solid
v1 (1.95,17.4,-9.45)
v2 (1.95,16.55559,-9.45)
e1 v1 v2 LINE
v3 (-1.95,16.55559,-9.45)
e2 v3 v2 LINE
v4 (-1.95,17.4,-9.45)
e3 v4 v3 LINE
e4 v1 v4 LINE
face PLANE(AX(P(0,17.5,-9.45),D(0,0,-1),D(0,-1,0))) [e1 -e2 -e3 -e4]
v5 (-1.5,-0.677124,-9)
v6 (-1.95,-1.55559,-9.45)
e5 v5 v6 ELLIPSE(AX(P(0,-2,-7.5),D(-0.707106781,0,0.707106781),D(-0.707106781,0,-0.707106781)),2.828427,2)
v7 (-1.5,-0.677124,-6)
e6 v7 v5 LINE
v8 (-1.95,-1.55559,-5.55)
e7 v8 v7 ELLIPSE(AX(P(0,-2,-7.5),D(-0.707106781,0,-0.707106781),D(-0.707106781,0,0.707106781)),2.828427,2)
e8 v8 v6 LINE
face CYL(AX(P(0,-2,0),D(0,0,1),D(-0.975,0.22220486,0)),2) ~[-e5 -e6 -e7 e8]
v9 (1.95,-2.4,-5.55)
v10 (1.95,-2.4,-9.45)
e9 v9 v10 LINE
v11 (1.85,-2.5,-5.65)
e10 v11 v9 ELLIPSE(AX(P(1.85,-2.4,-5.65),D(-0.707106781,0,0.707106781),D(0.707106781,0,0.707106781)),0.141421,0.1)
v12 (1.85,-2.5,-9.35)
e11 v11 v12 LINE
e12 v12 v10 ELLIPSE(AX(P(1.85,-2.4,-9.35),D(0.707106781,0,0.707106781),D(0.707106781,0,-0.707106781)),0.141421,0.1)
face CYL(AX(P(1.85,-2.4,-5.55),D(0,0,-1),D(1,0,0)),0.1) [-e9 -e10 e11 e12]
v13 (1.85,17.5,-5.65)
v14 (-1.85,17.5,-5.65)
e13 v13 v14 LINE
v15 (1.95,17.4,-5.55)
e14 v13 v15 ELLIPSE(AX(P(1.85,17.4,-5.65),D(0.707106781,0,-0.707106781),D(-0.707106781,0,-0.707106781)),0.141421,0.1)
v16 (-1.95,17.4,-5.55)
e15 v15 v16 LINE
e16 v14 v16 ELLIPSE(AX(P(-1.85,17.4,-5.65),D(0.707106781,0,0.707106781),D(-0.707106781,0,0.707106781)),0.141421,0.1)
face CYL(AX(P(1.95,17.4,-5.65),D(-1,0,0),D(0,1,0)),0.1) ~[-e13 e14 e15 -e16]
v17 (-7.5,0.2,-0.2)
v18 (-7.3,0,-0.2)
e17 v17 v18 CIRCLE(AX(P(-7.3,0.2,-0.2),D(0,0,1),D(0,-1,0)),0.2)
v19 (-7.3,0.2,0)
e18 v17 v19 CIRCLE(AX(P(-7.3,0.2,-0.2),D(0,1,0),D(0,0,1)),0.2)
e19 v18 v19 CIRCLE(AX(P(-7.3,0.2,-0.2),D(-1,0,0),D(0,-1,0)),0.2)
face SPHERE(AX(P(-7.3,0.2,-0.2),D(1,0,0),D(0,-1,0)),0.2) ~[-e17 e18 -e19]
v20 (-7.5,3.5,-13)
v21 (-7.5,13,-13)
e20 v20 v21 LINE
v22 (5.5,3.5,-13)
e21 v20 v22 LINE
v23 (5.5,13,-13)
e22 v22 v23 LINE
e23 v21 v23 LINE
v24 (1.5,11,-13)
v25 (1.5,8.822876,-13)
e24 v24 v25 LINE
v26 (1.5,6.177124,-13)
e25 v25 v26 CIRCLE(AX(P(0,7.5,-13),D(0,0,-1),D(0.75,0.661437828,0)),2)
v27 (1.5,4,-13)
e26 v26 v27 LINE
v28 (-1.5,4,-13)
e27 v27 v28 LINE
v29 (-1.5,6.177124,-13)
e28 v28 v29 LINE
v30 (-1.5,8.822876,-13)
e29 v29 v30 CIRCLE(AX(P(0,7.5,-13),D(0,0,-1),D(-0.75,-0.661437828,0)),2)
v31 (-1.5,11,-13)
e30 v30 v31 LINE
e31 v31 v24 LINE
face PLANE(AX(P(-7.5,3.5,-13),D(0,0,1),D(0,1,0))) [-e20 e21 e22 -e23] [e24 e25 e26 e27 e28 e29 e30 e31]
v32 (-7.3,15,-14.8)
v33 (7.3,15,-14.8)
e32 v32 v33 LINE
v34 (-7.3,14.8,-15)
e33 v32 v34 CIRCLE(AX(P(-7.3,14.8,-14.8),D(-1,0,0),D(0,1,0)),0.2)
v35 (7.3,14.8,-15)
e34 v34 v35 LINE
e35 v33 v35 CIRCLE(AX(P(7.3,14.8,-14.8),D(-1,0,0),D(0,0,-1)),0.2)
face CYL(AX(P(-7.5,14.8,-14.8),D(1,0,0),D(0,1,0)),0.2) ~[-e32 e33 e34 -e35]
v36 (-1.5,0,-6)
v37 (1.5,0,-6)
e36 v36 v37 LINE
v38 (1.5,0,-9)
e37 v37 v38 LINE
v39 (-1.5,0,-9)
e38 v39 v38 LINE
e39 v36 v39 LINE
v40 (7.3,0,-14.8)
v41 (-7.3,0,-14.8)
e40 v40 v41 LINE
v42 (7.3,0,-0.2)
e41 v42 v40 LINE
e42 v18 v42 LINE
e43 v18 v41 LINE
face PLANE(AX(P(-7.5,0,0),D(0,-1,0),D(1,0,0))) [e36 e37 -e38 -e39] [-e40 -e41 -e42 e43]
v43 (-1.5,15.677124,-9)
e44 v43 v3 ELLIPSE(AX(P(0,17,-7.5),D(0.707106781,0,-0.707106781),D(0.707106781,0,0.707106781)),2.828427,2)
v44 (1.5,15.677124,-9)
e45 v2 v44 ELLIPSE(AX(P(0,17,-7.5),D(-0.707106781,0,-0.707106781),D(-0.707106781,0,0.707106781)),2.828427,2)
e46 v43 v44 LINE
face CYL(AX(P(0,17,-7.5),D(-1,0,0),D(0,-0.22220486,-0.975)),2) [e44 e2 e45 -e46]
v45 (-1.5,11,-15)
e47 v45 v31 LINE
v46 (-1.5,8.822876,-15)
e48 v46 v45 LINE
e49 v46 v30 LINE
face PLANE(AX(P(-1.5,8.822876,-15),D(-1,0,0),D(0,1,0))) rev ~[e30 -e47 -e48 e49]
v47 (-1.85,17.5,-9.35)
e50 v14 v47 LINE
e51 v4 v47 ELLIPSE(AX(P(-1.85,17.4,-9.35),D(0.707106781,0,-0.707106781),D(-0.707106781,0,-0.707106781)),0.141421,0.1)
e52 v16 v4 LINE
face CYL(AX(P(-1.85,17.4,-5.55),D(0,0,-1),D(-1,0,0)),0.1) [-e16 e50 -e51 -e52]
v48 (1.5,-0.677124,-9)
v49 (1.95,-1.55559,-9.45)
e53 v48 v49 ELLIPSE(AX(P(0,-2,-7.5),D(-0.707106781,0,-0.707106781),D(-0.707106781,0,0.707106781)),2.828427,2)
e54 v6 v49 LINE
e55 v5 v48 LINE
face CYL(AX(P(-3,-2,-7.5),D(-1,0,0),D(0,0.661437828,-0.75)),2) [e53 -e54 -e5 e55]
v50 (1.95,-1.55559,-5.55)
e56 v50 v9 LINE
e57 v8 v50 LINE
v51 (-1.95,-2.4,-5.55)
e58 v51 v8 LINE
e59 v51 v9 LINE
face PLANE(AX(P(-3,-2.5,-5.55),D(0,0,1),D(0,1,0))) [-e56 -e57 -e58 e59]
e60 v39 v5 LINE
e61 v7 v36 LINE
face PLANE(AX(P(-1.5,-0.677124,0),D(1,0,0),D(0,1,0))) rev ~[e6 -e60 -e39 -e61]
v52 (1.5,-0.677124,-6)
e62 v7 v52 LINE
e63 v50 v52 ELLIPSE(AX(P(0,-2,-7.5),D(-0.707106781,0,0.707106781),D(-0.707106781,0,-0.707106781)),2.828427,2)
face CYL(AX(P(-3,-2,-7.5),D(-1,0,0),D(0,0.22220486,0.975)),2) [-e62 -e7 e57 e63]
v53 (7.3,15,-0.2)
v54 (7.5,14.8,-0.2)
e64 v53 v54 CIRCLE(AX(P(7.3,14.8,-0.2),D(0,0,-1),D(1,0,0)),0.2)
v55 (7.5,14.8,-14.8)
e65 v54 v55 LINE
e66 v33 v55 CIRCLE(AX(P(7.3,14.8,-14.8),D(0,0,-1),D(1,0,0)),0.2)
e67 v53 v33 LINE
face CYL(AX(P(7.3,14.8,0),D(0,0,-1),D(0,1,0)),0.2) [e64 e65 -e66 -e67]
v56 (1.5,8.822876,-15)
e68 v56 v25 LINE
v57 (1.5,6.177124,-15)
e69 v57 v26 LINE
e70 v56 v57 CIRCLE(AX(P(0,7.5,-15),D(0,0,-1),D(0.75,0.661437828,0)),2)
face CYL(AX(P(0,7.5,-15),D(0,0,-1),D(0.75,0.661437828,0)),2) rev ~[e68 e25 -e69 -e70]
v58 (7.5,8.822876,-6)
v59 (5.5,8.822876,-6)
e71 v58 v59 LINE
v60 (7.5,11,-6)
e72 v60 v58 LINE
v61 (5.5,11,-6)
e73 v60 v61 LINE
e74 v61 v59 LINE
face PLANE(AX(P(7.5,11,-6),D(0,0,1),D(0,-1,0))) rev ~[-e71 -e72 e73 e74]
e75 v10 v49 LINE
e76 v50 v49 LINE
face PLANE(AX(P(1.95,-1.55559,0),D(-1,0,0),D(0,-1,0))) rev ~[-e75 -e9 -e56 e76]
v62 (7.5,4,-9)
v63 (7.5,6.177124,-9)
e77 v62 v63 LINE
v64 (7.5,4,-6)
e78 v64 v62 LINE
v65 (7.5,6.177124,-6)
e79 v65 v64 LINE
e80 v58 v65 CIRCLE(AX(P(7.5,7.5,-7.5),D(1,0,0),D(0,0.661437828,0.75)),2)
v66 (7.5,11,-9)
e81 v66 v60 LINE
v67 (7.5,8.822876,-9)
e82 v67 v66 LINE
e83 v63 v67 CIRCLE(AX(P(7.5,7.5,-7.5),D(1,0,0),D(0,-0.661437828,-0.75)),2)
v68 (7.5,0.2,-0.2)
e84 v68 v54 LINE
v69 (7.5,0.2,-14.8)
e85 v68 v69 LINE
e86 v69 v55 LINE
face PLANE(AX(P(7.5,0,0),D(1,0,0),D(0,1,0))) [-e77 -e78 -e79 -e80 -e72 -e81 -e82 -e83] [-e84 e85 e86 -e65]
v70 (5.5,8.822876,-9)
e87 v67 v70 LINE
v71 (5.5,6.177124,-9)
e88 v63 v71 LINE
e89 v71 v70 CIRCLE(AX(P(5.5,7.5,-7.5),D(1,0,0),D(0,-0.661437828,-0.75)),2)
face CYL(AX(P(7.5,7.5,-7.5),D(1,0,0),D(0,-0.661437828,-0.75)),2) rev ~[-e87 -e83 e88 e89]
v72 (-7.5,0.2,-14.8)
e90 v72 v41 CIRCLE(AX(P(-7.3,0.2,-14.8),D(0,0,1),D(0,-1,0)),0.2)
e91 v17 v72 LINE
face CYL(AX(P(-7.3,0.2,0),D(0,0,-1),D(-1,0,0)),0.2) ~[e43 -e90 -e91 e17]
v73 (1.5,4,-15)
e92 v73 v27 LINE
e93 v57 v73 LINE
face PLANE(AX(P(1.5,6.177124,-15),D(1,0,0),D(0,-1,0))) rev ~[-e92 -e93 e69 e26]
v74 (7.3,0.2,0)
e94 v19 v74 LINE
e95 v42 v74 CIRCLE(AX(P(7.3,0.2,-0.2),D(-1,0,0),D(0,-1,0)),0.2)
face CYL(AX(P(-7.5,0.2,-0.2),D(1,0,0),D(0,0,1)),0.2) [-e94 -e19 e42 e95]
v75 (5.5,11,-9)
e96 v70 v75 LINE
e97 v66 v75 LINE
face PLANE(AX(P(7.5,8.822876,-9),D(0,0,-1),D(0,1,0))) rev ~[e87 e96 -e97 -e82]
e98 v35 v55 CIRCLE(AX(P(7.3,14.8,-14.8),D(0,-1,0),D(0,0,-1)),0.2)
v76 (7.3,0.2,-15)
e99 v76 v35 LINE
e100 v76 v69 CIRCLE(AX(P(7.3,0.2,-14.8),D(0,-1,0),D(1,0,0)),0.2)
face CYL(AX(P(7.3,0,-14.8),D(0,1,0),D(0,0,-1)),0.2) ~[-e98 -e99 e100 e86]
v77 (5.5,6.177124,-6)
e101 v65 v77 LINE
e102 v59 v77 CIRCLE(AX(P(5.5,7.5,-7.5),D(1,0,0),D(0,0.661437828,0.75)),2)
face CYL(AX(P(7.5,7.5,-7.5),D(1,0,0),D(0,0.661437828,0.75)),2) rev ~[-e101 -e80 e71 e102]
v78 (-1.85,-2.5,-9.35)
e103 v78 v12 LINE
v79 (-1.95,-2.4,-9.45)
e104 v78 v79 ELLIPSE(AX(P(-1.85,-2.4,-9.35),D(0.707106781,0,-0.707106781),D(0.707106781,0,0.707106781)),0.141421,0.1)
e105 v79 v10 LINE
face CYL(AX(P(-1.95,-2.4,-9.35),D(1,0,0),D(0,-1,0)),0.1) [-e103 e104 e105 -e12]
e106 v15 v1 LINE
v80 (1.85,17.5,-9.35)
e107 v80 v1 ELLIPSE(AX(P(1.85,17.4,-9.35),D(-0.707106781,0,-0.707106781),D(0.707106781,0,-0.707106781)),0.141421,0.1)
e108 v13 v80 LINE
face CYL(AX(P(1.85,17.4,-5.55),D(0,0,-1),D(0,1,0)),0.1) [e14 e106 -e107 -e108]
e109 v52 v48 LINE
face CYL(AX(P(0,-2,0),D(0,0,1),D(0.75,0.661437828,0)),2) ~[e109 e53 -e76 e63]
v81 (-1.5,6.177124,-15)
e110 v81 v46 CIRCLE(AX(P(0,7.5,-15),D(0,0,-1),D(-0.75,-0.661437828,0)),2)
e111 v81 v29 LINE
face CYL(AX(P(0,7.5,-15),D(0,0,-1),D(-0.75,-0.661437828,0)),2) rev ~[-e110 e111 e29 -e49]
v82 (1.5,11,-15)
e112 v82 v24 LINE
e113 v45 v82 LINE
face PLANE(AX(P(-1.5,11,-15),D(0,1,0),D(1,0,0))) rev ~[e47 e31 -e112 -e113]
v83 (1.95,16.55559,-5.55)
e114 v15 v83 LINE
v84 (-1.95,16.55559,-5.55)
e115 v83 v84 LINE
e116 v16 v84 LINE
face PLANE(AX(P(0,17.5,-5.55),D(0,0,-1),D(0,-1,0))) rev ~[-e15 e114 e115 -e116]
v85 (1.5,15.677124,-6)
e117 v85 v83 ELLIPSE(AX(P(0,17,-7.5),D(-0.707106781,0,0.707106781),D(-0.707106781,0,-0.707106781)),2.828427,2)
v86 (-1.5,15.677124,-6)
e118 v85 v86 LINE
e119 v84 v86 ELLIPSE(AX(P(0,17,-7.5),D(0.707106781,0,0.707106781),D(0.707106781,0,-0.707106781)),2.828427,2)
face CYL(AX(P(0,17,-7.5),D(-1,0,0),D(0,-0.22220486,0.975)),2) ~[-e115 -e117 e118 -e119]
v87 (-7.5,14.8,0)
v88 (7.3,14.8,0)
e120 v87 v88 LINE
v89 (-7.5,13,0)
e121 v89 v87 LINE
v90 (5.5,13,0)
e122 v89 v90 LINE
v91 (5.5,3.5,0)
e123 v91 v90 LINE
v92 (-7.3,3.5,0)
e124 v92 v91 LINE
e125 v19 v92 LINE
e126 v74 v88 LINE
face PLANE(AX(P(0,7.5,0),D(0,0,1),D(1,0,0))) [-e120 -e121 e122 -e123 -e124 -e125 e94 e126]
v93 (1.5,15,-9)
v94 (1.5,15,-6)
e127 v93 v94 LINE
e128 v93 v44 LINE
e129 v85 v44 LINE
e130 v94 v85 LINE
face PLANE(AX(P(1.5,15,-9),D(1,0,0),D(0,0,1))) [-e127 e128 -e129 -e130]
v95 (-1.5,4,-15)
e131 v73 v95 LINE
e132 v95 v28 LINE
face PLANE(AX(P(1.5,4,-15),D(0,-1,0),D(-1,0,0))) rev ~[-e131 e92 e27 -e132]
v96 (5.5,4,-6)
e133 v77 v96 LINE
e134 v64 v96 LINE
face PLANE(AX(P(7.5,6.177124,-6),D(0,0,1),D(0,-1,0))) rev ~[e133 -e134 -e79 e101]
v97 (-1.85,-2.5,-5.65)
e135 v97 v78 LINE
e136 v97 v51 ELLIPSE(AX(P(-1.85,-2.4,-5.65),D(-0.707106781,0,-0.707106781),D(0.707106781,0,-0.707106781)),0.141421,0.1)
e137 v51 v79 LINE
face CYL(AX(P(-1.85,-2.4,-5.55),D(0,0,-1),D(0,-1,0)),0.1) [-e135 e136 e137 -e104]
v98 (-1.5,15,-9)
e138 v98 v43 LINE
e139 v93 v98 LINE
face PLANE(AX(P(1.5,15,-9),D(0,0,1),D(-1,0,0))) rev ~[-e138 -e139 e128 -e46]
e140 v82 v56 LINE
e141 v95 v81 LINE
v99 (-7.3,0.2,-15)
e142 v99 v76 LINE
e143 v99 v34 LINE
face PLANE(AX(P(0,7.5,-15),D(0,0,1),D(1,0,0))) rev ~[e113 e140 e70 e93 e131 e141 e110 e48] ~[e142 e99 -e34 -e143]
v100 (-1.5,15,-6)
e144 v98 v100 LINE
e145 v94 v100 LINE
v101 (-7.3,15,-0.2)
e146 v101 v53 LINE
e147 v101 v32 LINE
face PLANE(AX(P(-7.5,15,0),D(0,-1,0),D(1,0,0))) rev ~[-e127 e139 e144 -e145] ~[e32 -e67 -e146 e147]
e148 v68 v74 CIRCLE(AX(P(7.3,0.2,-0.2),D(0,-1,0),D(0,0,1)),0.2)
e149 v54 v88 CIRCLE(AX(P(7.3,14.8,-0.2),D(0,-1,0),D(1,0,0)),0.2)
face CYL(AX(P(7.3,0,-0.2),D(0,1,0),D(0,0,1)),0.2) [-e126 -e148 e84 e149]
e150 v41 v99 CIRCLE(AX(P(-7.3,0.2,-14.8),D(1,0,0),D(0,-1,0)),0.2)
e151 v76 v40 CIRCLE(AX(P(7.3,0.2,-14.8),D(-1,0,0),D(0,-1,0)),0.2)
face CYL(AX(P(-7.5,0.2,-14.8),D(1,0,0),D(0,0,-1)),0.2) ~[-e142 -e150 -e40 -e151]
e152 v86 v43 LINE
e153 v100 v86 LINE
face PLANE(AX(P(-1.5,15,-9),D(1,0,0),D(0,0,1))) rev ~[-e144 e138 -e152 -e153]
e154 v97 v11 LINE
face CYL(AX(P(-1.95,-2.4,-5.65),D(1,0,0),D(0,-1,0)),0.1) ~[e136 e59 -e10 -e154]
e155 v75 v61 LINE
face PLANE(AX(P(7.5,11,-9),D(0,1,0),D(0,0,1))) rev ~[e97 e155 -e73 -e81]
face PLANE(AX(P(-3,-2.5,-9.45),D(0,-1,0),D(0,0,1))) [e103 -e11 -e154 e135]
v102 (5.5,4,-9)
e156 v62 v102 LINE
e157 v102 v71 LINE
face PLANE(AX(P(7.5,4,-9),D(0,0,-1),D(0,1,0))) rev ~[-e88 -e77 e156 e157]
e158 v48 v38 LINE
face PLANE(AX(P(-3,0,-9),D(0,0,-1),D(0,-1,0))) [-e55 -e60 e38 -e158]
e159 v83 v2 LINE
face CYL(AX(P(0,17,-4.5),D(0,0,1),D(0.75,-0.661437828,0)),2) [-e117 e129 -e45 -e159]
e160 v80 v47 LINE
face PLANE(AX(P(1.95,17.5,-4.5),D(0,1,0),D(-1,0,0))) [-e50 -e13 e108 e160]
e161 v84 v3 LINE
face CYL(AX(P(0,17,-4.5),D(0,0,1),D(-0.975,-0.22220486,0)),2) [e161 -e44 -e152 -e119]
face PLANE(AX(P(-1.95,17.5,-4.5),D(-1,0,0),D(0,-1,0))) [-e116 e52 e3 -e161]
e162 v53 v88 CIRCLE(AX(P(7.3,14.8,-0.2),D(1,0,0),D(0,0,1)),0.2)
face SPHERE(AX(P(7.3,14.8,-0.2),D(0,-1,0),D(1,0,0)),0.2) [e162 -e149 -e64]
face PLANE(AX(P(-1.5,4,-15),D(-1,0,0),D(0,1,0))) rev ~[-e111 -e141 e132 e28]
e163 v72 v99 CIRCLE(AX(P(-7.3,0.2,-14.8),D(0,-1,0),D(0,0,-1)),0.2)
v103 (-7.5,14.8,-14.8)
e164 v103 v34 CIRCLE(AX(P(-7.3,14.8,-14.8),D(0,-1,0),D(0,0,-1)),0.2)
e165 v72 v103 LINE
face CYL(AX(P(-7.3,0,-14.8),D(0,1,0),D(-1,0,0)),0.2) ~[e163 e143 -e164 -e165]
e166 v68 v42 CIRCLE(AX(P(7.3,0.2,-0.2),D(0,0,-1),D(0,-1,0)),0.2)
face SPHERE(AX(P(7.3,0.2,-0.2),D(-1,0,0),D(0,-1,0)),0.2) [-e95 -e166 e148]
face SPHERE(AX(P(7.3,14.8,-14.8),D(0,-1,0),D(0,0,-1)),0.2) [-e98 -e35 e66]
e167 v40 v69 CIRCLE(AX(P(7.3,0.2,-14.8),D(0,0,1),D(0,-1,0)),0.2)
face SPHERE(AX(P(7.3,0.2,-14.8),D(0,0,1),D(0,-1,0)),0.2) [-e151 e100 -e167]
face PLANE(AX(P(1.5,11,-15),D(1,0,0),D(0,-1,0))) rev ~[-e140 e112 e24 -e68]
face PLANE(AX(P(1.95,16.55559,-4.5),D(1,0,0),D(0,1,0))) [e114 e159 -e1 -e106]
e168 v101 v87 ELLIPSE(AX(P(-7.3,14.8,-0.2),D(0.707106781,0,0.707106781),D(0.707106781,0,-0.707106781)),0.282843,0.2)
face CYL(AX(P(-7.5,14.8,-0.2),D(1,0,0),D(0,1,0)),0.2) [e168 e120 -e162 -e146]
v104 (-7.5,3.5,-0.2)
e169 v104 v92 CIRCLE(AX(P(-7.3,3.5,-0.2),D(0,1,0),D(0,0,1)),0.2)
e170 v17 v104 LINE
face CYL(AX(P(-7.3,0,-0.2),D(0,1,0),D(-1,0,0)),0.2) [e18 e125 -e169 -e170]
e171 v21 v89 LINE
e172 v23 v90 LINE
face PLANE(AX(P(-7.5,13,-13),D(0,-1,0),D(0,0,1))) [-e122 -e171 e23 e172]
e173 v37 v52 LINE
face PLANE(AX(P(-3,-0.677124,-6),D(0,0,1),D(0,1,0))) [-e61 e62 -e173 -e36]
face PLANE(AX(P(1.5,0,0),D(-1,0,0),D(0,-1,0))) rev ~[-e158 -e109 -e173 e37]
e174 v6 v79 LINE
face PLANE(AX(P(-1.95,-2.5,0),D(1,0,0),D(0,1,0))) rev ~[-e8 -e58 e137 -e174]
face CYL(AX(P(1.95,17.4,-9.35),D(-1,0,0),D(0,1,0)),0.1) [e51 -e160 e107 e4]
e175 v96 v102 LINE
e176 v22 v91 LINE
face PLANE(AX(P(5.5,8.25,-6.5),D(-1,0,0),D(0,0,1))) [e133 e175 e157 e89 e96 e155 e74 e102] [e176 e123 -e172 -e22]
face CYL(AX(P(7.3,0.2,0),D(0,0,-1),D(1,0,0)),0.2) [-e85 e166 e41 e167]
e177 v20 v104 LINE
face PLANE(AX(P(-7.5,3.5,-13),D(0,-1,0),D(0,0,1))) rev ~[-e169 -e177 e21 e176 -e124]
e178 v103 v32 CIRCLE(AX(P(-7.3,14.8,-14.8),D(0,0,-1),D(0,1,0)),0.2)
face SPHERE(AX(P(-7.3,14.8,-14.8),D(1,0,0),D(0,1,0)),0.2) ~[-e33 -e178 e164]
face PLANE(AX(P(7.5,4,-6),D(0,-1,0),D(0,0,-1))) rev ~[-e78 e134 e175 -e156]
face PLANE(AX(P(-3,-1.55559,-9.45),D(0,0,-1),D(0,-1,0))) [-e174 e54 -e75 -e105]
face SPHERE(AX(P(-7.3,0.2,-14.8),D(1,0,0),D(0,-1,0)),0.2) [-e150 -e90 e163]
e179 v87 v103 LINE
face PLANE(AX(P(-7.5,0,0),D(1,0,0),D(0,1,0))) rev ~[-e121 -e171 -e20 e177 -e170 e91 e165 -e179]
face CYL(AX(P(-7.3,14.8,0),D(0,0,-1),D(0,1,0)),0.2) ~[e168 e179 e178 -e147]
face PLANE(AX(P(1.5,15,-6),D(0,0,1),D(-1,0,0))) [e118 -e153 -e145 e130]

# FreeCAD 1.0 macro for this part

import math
import FreeCAD as App
import Part
import Sketcher


def edges_at(feature, points):
    """Names of the edges that pass closest to the given points."""
    edges = feature.Shape.Edges
    near = lambda p: min(range(len(edges)), key=lambda i: edges[i].distToShape(Part.Vertex(*p))[0])
    return sorted({f"Edge{near(p) + 1}" for p in points})

doc = App.newDocument("Part")
body = doc.addObject("PartDesign::Body", "Body")

sketch1 = doc.addObject("Sketcher::SketchObject", "Sketch")
body.addObject(sketch1)
sketch1.AttachmentSupport = (doc.XY_Plane, [""])
sketch1.MapMode = "FlatFace"
sketch1.addGeometry(Part.LineSegment(App.Vector(-8, 15, 0), App.Vector(-8, 0, 0)), False)
sketch1.addGeometry(Part.LineSegment(App.Vector(-8, 0, 0), App.Vector(8, 0, 0)), False)
sketch1.addGeometry(Part.LineSegment(App.Vector(8, 0, 0), App.Vector(8, 15, 0)), False)
sketch1.addGeometry(Part.LineSegment(App.Vector(8, 15, 0), App.Vector(-8, 15, 0)), False)
sketch1.addConstraint(Sketcher.Constraint("Coincident", 0, 2, 1, 1))
sketch1.addConstraint(Sketcher.Constraint("Coincident", 1, 2, 2, 1))
sketch1.addConstraint(Sketcher.Constraint("Coincident", 2, 2, 3, 1))
sketch1.addConstraint(Sketcher.Constraint("Coincident", 3, 2, 0, 1))
sketch1.addConstraint(Sketcher.Constraint("Vertical", 0))
sketch1.addConstraint(Sketcher.Constraint("Horizontal", 1))
sketch1.addConstraint(Sketcher.Constraint("Vertical", 2))
sketch1.addConstraint(Sketcher.Constraint("Horizontal", 3))
sketch1.addConstraint(Sketcher.Constraint("Symmetric", 0, 2, 1, 2, -1, 1))
sketch1.addConstraint(Sketcher.Constraint("Equal", 3, 0))
sketch1.addConstraint(Sketcher.Constraint("DistanceX", 1, 1, 1, 2, 15.0))
pad1 = doc.addObject("PartDesign::Pad", "Pad")
body.addObject(pad1)
pad1.Profile = sketch1
pad1.Length = 15
pad1.Reversed = True

sketch2 = doc.addObject("Sketcher::SketchObject", "Sketch001")
body.addObject(sketch2)
sketch2.AttachmentSupport = (doc.YZ_Plane, [""])
sketch2.MapMode = "FlatFace"
sketch2.AttachmentOffset = App.Placement(App.Vector(0, 0, -7.5), App.Rotation())
sketch2.addGeometry(Part.LineSegment(App.Vector(13, -13, 0), App.Vector(4, -13, 0)), False)
sketch2.addGeometry(Part.LineSegment(App.Vector(4, -13, 0), App.Vector(4, 0, 0)), False)
sketch2.addGeometry(Part.LineSegment(App.Vector(4, 0, 0), App.Vector(13, 0, 0)), False)
sketch2.addGeometry(Part.LineSegment(App.Vector(13, 0, 0), App.Vector(13, -13, 0)), False)
sketch2.addConstraint(Sketcher.Constraint("Coincident", 0, 2, 1, 1))
sketch2.addConstraint(Sketcher.Constraint("Coincident", 1, 2, 2, 1))
sketch2.addConstraint(Sketcher.Constraint("Coincident", 2, 2, 3, 1))
sketch2.addConstraint(Sketcher.Constraint("Coincident", 3, 2, 0, 1))
sketch2.addConstraint(Sketcher.Constraint("Horizontal", 0))
sketch2.addConstraint(Sketcher.Constraint("Vertical", 1))
sketch2.addConstraint(Sketcher.Constraint("Horizontal", 2))
sketch2.addConstraint(Sketcher.Constraint("Vertical", 3))
sketch2.addConstraint(Sketcher.Constraint("PointOnObject", 1, 2, -1))
sketch2.addConstraint(Sketcher.Constraint("DistanceY", 1, 1, 1, 2, 13.0))
sketch2.addConstraint(Sketcher.Constraint("DistanceX", 0, 2, 0, 1, 9.5))
sketch2.addConstraint(Sketcher.Constraint("DistanceX", -1, 1, 2, 2, 13.0))
pocket1 = doc.addObject("PartDesign::Pocket", "Pocket")
body.addObject(pocket1)
pocket1.Profile = sketch2
pocket1.Length = 13
pocket1.Reversed = True
body2 = doc.addObject("PartDesign::Body", "Body001")

sketch3 = doc.addObject("Sketcher::SketchObject", "Sketch002")
body2.addObject(sketch3)
sketch3.AttachmentSupport = (doc.getObject("XY_Plane001"), [""])
sketch3.MapMode = "FlatFace"
sketch3.AttachmentOffset = App.Placement(App.Vector(0, 0, -4.5), App.Rotation())
sketch3.addGeometry(Part.LineSegment(App.Vector(-1.5, 15.7, 0), App.Vector(1.5, 15.7, 0)), False)
sketch3.addGeometry(Part.ArcOfCircle(Part.Circle(App.Vector(0, 17, 0), App.Vector(0, 0, 1), 2), math.radians(-41), math.radians(-13)), False)
sketch3.addGeometry(Part.LineSegment(App.Vector(1.9, 16.6, 0), App.Vector(1.9, 17.5, 0)), False)
sketch3.addGeometry(Part.LineSegment(App.Vector(1.9, 17.5, 0), App.Vector(-1.9, 17.5, 0)), False)
sketch3.addGeometry(Part.LineSegment(App.Vector(-1.9, 17.5, 0), App.Vector(-1.9, 16.6, 0)), False)
sketch3.addGeometry(Part.ArcOfCircle(Part.Circle(App.Vector(0, 17, 0), App.Vector(0, 0, 1), 2), math.radians(-167), math.radians(-139)), False)
sketch3.addConstraint(Sketcher.Constraint("Coincident", 0, 2, 1, 1))
sketch3.addConstraint(Sketcher.Constraint("Coincident", 1, 2, 2, 1))
sketch3.addConstraint(Sketcher.Constraint("Coincident", 2, 2, 3, 1))
sketch3.addConstraint(Sketcher.Constraint("Coincident", 3, 2, 4, 1))
sketch3.addConstraint(Sketcher.Constraint("Coincident", 4, 2, 5, 1))
sketch3.addConstraint(Sketcher.Constraint("Coincident", 5, 2, 0, 1))
sketch3.addConstraint(Sketcher.Constraint("Horizontal", 0))
sketch3.addConstraint(Sketcher.Constraint("Vertical", 2))
sketch3.addConstraint(Sketcher.Constraint("Horizontal", 3))
sketch3.addConstraint(Sketcher.Constraint("Vertical", 4))
sketch3.addConstraint(Sketcher.Constraint("Coincident", 5, 3, 1, 3))
sketch3.addConstraint(Sketcher.Constraint("Equal", 1, 5))
sketch3.addConstraint(Sketcher.Constraint("Symmetric", 1, 2, 4, 2, -2))
sketch3.addConstraint(Sketcher.Constraint("Radius", 1, 2.0))
sketch3.addConstraint(Sketcher.Constraint("DistanceX", 0, 1, 0, 2, 3.0))
sketch3.addConstraint(Sketcher.Constraint("DistanceX", 3, 2, 3, 1, 3.9))
sketch3.addConstraint(Sketcher.Constraint("DistanceY", -1, 1, 1, 3, 17.0))
sketch3.addConstraint(Sketcher.Constraint("DistanceY", -1, 1, 2, 2, 17.5))
pad2 = doc.addObject("PartDesign::Pad", "Pad001")
body2.addObject(pad2)
pad2.Profile = sketch3
pad2.Length = 6
pad2.Reversed = True
body.AllowCompound = True
doc.recompute()

boolean = doc.addObject("PartDesign::Boolean", "Boolean")
body.addObject(boolean)
boolean.Type = "Fuse"
boolean.addObjects([body2])

sketch4 = doc.addObject("Sketcher::SketchObject", "Sketch003")
body.addObject(sketch4)
sketch4.AttachmentSupport = (doc.XZ_Plane, [""])
sketch4.MapMode = "FlatFace"
sketch4.AttachmentOffset = App.Placement(App.Vector(0, 0, -15), App.Rotation())
sketch4.addGeometry(Part.LineSegment(App.Vector(1.5, -6, 0), App.Vector(1.5, -9, 0)), False)
sketch4.addGeometry(Part.LineSegment(App.Vector(1.5, -9, 0), App.Vector(-1.5, -9, 0)), False)
sketch4.addGeometry(Part.LineSegment(App.Vector(-1.5, -9, 0), App.Vector(-1.5, -6, 0)), False)
sketch4.addGeometry(Part.LineSegment(App.Vector(-1.5, -6, 0), App.Vector(1.5, -6, 0)), False)
sketch4.addConstraint(Sketcher.Constraint("Coincident", 0, 2, 1, 1))
sketch4.addConstraint(Sketcher.Constraint("Coincident", 1, 2, 2, 1))
sketch4.addConstraint(Sketcher.Constraint("Coincident", 2, 2, 3, 1))
sketch4.addConstraint(Sketcher.Constraint("Coincident", 3, 2, 0, 1))
sketch4.addConstraint(Sketcher.Constraint("Vertical", 0))
sketch4.addConstraint(Sketcher.Constraint("Horizontal", 1))
sketch4.addConstraint(Sketcher.Constraint("Vertical", 2))
sketch4.addConstraint(Sketcher.Constraint("Horizontal", 3))
sketch4.addConstraint(Sketcher.Constraint("Equal", 3, 0))
sketch4.addConstraint(Sketcher.Constraint("DistanceX", 1, 2, 1, 1, 3.0))
sketch4.addConstraint(Sketcher.Constraint("DistanceY", 0, 2, -1, 1, 9.0))
sketch4.addConstraint(Sketcher.Constraint("DistanceX", -1, 1, 0, 2, 1.5))
pad3 = doc.addObject("PartDesign::Pad", "Pad002")
body.addObject(pad3)
pad3.Profile = sketch4
pad3.Length = 1
pad3.Reversed = True

sketch5 = doc.addObject("Sketcher::SketchObject", "Sketch004")
body.addObject(sketch5)
sketch5.AttachmentSupport = (doc.XY_Plane, [""])
sketch5.MapMode = "FlatFace"
sketch5.AttachmentOffset = App.Placement(App.Vector(0, 0, -15), App.Rotation())
sketch5.addGeometry(Part.LineSegment(App.Vector(1.5, 6.2, 0), App.Vector(1.5, 4, 0)), False)
sketch5.addGeometry(Part.LineSegment(App.Vector(1.5, 4, 0), App.Vector(-1.5, 4, 0)), False)
sketch5.addGeometry(Part.LineSegment(App.Vector(-1.5, 4, 0), App.Vector(-1.5, 6.2, 0)), False)
sketch5.addGeometry(Part.ArcOfCircle(Part.Circle(App.Vector(0, 7.5, 0), App.Vector(0, 0, 1), 2), math.radians(139), math.radians(221)), False)
sketch5.addGeometry(Part.LineSegment(App.Vector(-1.5, 8.8, 0), App.Vector(-1.5, 11, 0)), False)
sketch5.addGeometry(Part.LineSegment(App.Vector(-1.5, 11, 0), App.Vector(1.5, 11, 0)), False)
sketch5.addGeometry(Part.LineSegment(App.Vector(1.5, 11, 0), App.Vector(1.5, 8.8, 0)), False)
sketch5.addGeometry(Part.ArcOfCircle(Part.Circle(App.Vector(0, 7.5, 0), App.Vector(0, 0, 1), 2), math.radians(-41), math.radians(41)), False)
sketch5.addConstraint(Sketcher.Constraint("Coincident", 0, 2, 1, 1))
sketch5.addConstraint(Sketcher.Constraint("Coincident", 1, 2, 2, 1))
sketch5.addConstraint(Sketcher.Constraint("Coincident", 2, 2, 3, 2))
sketch5.addConstraint(Sketcher.Constraint("Coincident", 3, 1, 4, 1))
sketch5.addConstraint(Sketcher.Constraint("Coincident", 4, 2, 5, 1))
sketch5.addConstraint(Sketcher.Constraint("Coincident", 5, 2, 6, 1))
sketch5.addConstraint(Sketcher.Constraint("Coincident", 6, 2, 7, 2))
sketch5.addConstraint(Sketcher.Constraint("Coincident", 7, 1, 0, 1))
sketch5.addConstraint(Sketcher.Constraint("Vertical", 0))
sketch5.addConstraint(Sketcher.Constraint("Horizontal", 1))
sketch5.addConstraint(Sketcher.Constraint("Vertical", 2))
sketch5.addConstraint(Sketcher.Constraint("Vertical", 4))
sketch5.addConstraint(Sketcher.Constraint("Horizontal", 5))
sketch5.addConstraint(Sketcher.Constraint("Vertical", 6))
sketch5.addConstraint(Sketcher.Constraint("Coincident", 7, 3, 3, 3))
sketch5.addConstraint(Sketcher.Constraint("Equal", 3, 7))
sketch5.addConstraint(Sketcher.Constraint("Symmetric", 3, 1, 6, 2, -2))
sketch5.addConstraint(Sketcher.Constraint("Horizontal", 2, 2, 7, 1))
sketch5.addConstraint(Sketcher.Constraint("Vertical", 2, 2, 3, 1))
sketch5.addConstraint(Sketcher.Constraint("Equal", 2, 4))
sketch5.addConstraint(Sketcher.Constraint("Radius", 3, 2.0))
sketch5.addConstraint(Sketcher.Constraint("DistanceX", 1, 2, 1, 1, 3.0))
sketch5.addConstraint(Sketcher.Constraint("DistanceY", -1, 1, 0, 2, 4.0))
sketch5.addConstraint(Sketcher.Constraint("DistanceY", -1, 1, 4, 2, 11.0))
pocket2 = doc.addObject("PartDesign::Pocket", "Pocket001")
body.addObject(pocket2)
pocket2.Profile = sketch5
pocket2.Type = "UpToFirst"
pocket2.Reversed = True

sketch6 = doc.addObject("Sketcher::SketchObject", "Sketch005")
body.addObject(sketch6)
sketch6.AttachmentSupport = (doc.YZ_Plane, [""])
sketch6.MapMode = "FlatFace"
sketch6.AttachmentOffset = App.Placement(App.Vector(0, 0, 7.5), App.Rotation())
sketch6.addGeometry(Part.LineSegment(App.Vector(6.2, -6, 0), App.Vector(4, -6, 0)), False)
sketch6.addGeometry(Part.LineSegment(App.Vector(4, -6, 0), App.Vector(4, -9, 0)), False)
sketch6.addGeometry(Part.LineSegment(App.Vector(4, -9, 0), App.Vector(6.2, -9, 0)), False)
sketch6.addGeometry(Part.ArcOfCircle(Part.Circle(App.Vector(7.5, -7.5, 0), App.Vector(0, 0, 1), 2), math.radians(-131), math.radians(-49)), False)
sketch6.addGeometry(Part.LineSegment(App.Vector(8.8, -9, 0), App.Vector(11, -9, 0)), False)
sketch6.addGeometry(Part.LineSegment(App.Vector(11, -9, 0), App.Vector(11, -6, 0)), False)
sketch6.addGeometry(Part.LineSegment(App.Vector(11, -6, 0), App.Vector(8.8, -6, 0)), False)
sketch6.addGeometry(Part.ArcOfCircle(Part.Circle(App.Vector(7.5, -7.5, 0), App.Vector(0, 0, 1), 2), math.radians(49), math.radians(131)), False)
sketch6.addConstraint(Sketcher.Constraint("Coincident", 0, 2, 1, 1))
sketch6.addConstraint(Sketcher.Constraint("Coincident", 1, 2, 2, 1))
sketch6.addConstraint(Sketcher.Constraint("Coincident", 2, 2, 3, 1))
sketch6.addConstraint(Sketcher.Constraint("Coincident", 3, 2, 4, 1))
sketch6.addConstraint(Sketcher.Constraint("Coincident", 4, 2, 5, 1))
sketch6.addConstraint(Sketcher.Constraint("Coincident", 5, 2, 6, 1))
sketch6.addConstraint(Sketcher.Constraint("Coincident", 6, 2, 7, 1))
sketch6.addConstraint(Sketcher.Constraint("Coincident", 7, 2, 0, 1))
sketch6.addConstraint(Sketcher.Constraint("Horizontal", 0))
sketch6.addConstraint(Sketcher.Constraint("Vertical", 1))
sketch6.addConstraint(Sketcher.Constraint("Horizontal", 2))
sketch6.addConstraint(Sketcher.Constraint("Horizontal", 4))
sketch6.addConstraint(Sketcher.Constraint("Vertical", 5))
sketch6.addConstraint(Sketcher.Constraint("Horizontal", 6))
sketch6.addConstraint(Sketcher.Constraint("Coincident", 7, 3, 3, 3))
sketch6.addConstraint(Sketcher.Constraint("Equal", 3, 7))
sketch6.addConstraint(Sketcher.Constraint("Horizontal", 2, 2, 3, 2))
sketch6.addConstraint(Sketcher.Constraint("Horizontal", 0, 2, 5, 2))
sketch6.addConstraint(Sketcher.Constraint("Vertical", 3, 2, 6, 2))
sketch6.addConstraint(Sketcher.Constraint("Equal", 2, 4))
sketch6.addConstraint(Sketcher.Constraint("Radius", 3, 2.0))
sketch6.addConstraint(Sketcher.Constraint("DistanceY", 1, 2, 1, 1, 3.0))
sketch6.addConstraint(Sketcher.Constraint("DistanceX", -1, 1, 0, 2, 4.0))
sketch6.addConstraint(Sketcher.Constraint("DistanceY", 0, 2, -1, 1, 6.0))
sketch6.addConstraint(Sketcher.Constraint("DistanceX", -1, 1, 4, 2, 11.0))
pocket3 = doc.addObject("PartDesign::Pocket", "Pocket002")
body.addObject(pocket3)
pocket3.Profile = sketch6
pocket3.Type = "UpToFirst"

sketch7 = doc.addObject("Sketcher::SketchObject", "Sketch006")
body.addObject(sketch7)
sketch7.AttachmentSupport = (doc.YZ_Plane, [""])
sketch7.MapMode = "FlatFace"
sketch7.addGeometry(Part.LineSegment(App.Vector(16.6, -5.5, 0), App.Vector(17.5, -5.5, 0)), False)
sketch7.addGeometry(Part.LineSegment(App.Vector(17.5, -5.5, 0), App.Vector(17.5, -4.5, 0)), False)
sketch7.addGeometry(Part.LineSegment(App.Vector(17.5, -4.5, 0), App.Vector(15.7, -4.5, 0)), False)
sketch7.addGeometry(Part.LineSegment(App.Vector(15.7, -4.5, 0), App.Vector(15.7, -6, 0)), False)
sketch7.addGeometry(Part.ArcOfCircle(Part.Circle(App.Vector(17, -7.5, 0), App.Vector(0, 0, 1), 2), math.radians(103), math.radians(131)), False)
sketch7.addConstraint(Sketcher.Constraint("Coincident", 0, 2, 1, 1))
sketch7.addConstraint(Sketcher.Constraint("Coincident", 1, 2, 2, 1))
sketch7.addConstraint(Sketcher.Constraint("Coincident", 2, 2, 3, 1))
sketch7.addConstraint(Sketcher.Constraint("Coincident", 3, 2, 4, 2))
sketch7.addConstraint(Sketcher.Constraint("Coincident", 4, 1, 0, 1))
sketch7.addConstraint(Sketcher.Constraint("Horizontal", 0))
sketch7.addConstraint(Sketcher.Constraint("Vertical", 1))
sketch7.addConstraint(Sketcher.Constraint("Horizontal", 2))
sketch7.addConstraint(Sketcher.Constraint("Vertical", 3))
sketch7.addConstraint(Sketcher.Constraint("Radius", 4, 2.0))
sketch7.addConstraint(Sketcher.Constraint("DistanceY", 3, 2, 3, 1, 1.5))
sketch7.addConstraint(Sketcher.Constraint("DistanceX", -1, 1, 4, 3, 17.0))
sketch7.addConstraint(Sketcher.Constraint("DistanceY", 3, 2, -1, 1, 6.0))
sketch7.addConstraint(Sketcher.Constraint("DistanceY", 4, 3, 1, 2, 3.0))
sketch7.addConstraint(Sketcher.Constraint("DistanceY", 1, 1, 1, 2, 1.05))
sketch7.addConstraint(Sketcher.Constraint("DistanceX", -1, 1, 0, 2, 17.5))
pocket4 = doc.addObject("PartDesign::Pocket", "Pocket003")
body.addObject(pocket4)
pocket4.Profile = sketch7
pocket4.Type = "UpToFirst"

sketch8 = doc.addObject("Sketcher::SketchObject", "Sketch007")
body.addObject(sketch8)
sketch8.AttachmentSupport = (doc.YZ_Plane, [""])
sketch8.MapMode = "FlatFace"
sketch8.addGeometry(Part.LineSegment(App.Vector(17.5, -10.5, 0), App.Vector(17.5, -9.4, 0)), False)
sketch8.addGeometry(Part.LineSegment(App.Vector(17.5, -9.4, 0), App.Vector(16.6, -9.4, 0)), False)
sketch8.addGeometry(Part.ArcOfCircle(Part.Circle(App.Vector(17, -7.5, 0), App.Vector(0, 0, 1), 2), math.radians(-131), math.radians(-103)), False)
sketch8.addGeometry(Part.LineSegment(App.Vector(15.7, -9, 0), App.Vector(15.7, -10.5, 0)), False)
sketch8.addGeometry(Part.LineSegment(App.Vector(15.7, -10.5, 0), App.Vector(17.5, -10.5, 0)), False)
sketch8.addConstraint(Sketcher.Constraint("Coincident", 0, 2, 1, 1))
sketch8.addConstraint(Sketcher.Constraint("Coincident", 1, 2, 2, 2))
sketch8.addConstraint(Sketcher.Constraint("Coincident", 2, 1, 3, 1))
sketch8.addConstraint(Sketcher.Constraint("Coincident", 3, 2, 4, 1))
sketch8.addConstraint(Sketcher.Constraint("Coincident", 4, 2, 0, 1))
sketch8.addConstraint(Sketcher.Constraint("Vertical", 0))
sketch8.addConstraint(Sketcher.Constraint("Horizontal", 1))
sketch8.addConstraint(Sketcher.Constraint("Vertical", 3))
sketch8.addConstraint(Sketcher.Constraint("Horizontal", 4))
sketch8.addConstraint(Sketcher.Constraint("Radius", 2, 2.0))
sketch8.addConstraint(Sketcher.Constraint("DistanceY", 3, 2, 3, 1, 1.5))
sketch8.addConstraint(Sketcher.Constraint("DistanceX", -1, 1, 2, 3, 17.0))
sketch8.addConstraint(Sketcher.Constraint("DistanceY", 2, 1, -1, 1, 9.0))
sketch8.addConstraint(Sketcher.Constraint("DistanceY", 3, 2, 2, 3, 3.0))
sketch8.addConstraint(Sketcher.Constraint("DistanceY", 0, 1, 0, 2, 1.05))
sketch8.addConstraint(Sketcher.Constraint("DistanceX", -1, 1, 0, 2, 17.5))
pocket5 = doc.addObject("PartDesign::Pocket", "Pocket004")
body.addObject(pocket5)
pocket5.Profile = sketch8
pocket5.Type = "UpToFirst"

sketch9 = doc.addObject("Sketcher::SketchObject", "Sketch008")
body.addObject(sketch9)
sketch9.AttachmentSupport = (doc.YZ_Plane, [""])
sketch9.MapMode = "FlatFace"
sketch9.addGeometry(Part.LineSegment(App.Vector(16.6, -5.5, 0), App.Vector(17.5, -5.5, 0)), False)
sketch9.addGeometry(Part.LineSegment(App.Vector(17.5, -5.5, 0), App.Vector(17.5, -4.5, 0)), False)
sketch9.addGeometry(Part.LineSegment(App.Vector(17.5, -4.5, 0), App.Vector(15.7, -4.5, 0)), False)
sketch9.addGeometry(Part.LineSegment(App.Vector(15.7, -4.5, 0), App.Vector(15.7, -6, 0)), False)
sketch9.addGeometry(Part.ArcOfCircle(Part.Circle(App.Vector(17, -7.5, 0), App.Vector(0, 0, 1), 2), math.radians(103), math.radians(131)), False)
sketch9.addConstraint(Sketcher.Constraint("Coincident", 0, 2, 1, 1))
sketch9.addConstraint(Sketcher.Constraint("Coincident", 1, 2, 2, 1))
sketch9.addConstraint(Sketcher.Constraint("Coincident", 2, 2, 3, 1))
sketch9.addConstraint(Sketcher.Constraint("Coincident", 3, 2, 4, 2))
sketch9.addConstraint(Sketcher.Constraint("Coincident", 4, 1, 0, 1))
sketch9.addConstraint(Sketcher.Constraint("Horizontal", 0))
sketch9.addConstraint(Sketcher.Constraint("Vertical", 1))
sketch9.addConstraint(Sketcher.Constraint("Horizontal", 2))
sketch9.addConstraint(Sketcher.Constraint("Vertical", 3))
sketch9.addConstraint(Sketcher.Constraint("Radius", 4, 2.0))
sketch9.addConstraint(Sketcher.Constraint("DistanceY", 3, 2, 3, 1, 1.5))
sketch9.addConstraint(Sketcher.Constraint("DistanceX", -1, 1, 4, 3, 17.0))
sketch9.addConstraint(Sketcher.Constraint("DistanceY", 3, 2, -1, 1, 6.0))
sketch9.addConstraint(Sketcher.Constraint("DistanceY", 4, 3, 1, 2, 3.0))
sketch9.addConstraint(Sketcher.Constraint("DistanceY", 1, 1, 1, 2, 1.05))
sketch9.addConstraint(Sketcher.Constraint("DistanceX", -1, 1, 0, 2, 17.5))
pocket6 = doc.addObject("PartDesign::Pocket", "Pocket005")
body.addObject(pocket6)
pocket6.Profile = sketch9
pocket6.Type = "UpToFirst"
pocket6.Reversed = True

sketch10 = doc.addObject("Sketcher::SketchObject", "Sketch009")
body.addObject(sketch10)
sketch10.AttachmentSupport = (doc.YZ_Plane, [""])
sketch10.MapMode = "FlatFace"
sketch10.addGeometry(Part.LineSegment(App.Vector(17.5, -10.5, 0), App.Vector(17.5, -9.4, 0)), False)
sketch10.addGeometry(Part.LineSegment(App.Vector(17.5, -9.4, 0), App.Vector(16.6, -9.4, 0)), False)
sketch10.addGeometry(Part.ArcOfCircle(Part.Circle(App.Vector(17, -7.5, 0), App.Vector(0, 0, 1), 2), math.radians(-131), math.radians(-103)), False)
sketch10.addGeometry(Part.LineSegment(App.Vector(15.7, -9, 0), App.Vector(15.7, -10.5, 0)), False)
sketch10.addGeometry(Part.LineSegment(App.Vector(15.7, -10.5, 0), App.Vector(17.5, -10.5, 0)), False)
sketch10.addConstraint(Sketcher.Constraint("Coincident", 0, 2, 1, 1))
sketch10.addConstraint(Sketcher.Constraint("Coincident", 1, 2, 2, 2))
sketch10.addConstraint(Sketcher.Constraint("Coincident", 2, 1, 3, 1))
sketch10.addConstraint(Sketcher.Constraint("Coincident", 3, 2, 4, 1))
sketch10.addConstraint(Sketcher.Constraint("Coincident", 4, 2, 0, 1))
sketch10.addConstraint(Sketcher.Constraint("Vertical", 0))
sketch10.addConstraint(Sketcher.Constraint("Horizontal", 1))
sketch10.addConstraint(Sketcher.Constraint("Vertical", 3))
sketch10.addConstraint(Sketcher.Constraint("Horizontal", 4))
sketch10.addConstraint(Sketcher.Constraint("Radius", 2, 2.0))
sketch10.addConstraint(Sketcher.Constraint("DistanceY", 3, 2, 3, 1, 1.5))
sketch10.addConstraint(Sketcher.Constraint("DistanceX", -1, 1, 2, 3, 17.0))
sketch10.addConstraint(Sketcher.Constraint("DistanceY", 2, 1, -1, 1, 9.0))
sketch10.addConstraint(Sketcher.Constraint("DistanceY", 3, 2, 2, 3, 3.0))
sketch10.addConstraint(Sketcher.Constraint("DistanceY", 0, 1, 0, 2, 1.05))
sketch10.addConstraint(Sketcher.Constraint("DistanceX", -1, 1, 0, 2, 17.5))
pocket7 = doc.addObject("PartDesign::Pocket", "Pocket006")
body.addObject(pocket7)
pocket7.Profile = sketch10
pocket7.Type = "UpToFirst"
pocket7.Reversed = True
doc.recompute()

fillet = doc.addObject("PartDesign::Fillet", "Fillet")
body.addObject(fillet)
fillet.Base = (pocket7, edges_at(pocket7, [
    (0, 17.5, -5.55),
    (1.95, 17.5, -7.5),
    (-1.95, 17.5, -7.5),
    (0, 17.5, -9.45),
]))
fillet.Radius = 0.1
doc.recompute()

fillet2 = doc.addObject("PartDesign::Fillet", "Fillet001")
body.addObject(fillet2)
fillet2.Base = (fillet, edges_at(fillet, [
    (0, 0, 0),
    (7.5, 0, -7.5),
    (0, 0, -15),
    (-7.5, 0, -7.5),
    (7.5, 7.5, -15),
    (0, 15, -15),
    (-7.5, 15, -7.5),
    (-7.5, 7.5, -15),
    (-7.5, 1.75, 0),
    (7.5, 7.5, 0),
    (7.5, 15, -7.5),
    (0, 15, 0),
]))
fillet2.Radius = 0.2

sketch11 = doc.addObject("Sketcher::SketchObject", "Sketch010")
body.addObject(sketch11)
sketch11.AttachmentSupport = (doc.YZ_Plane, [""])
sketch11.MapMode = "FlatFace"
sketch11.addGeometry(Part.LineSegment(App.Vector(0, -9, 0), App.Vector(0, -6, 0)), False)
sketch11.addGeometry(Part.LineSegment(App.Vector(0, -6, 0), App.Vector(-0.7, -6, 0)), False)
sketch11.addGeometry(Part.ArcOfCircle(Part.Circle(App.Vector(-2, -7.5, 0), App.Vector(0, 0, 1), 2), math.radians(49), math.radians(77)), False)
sketch11.addGeometry(Part.LineSegment(App.Vector(-1.6, -5.5, 0), App.Vector(-2.5, -5.5, 0)), False)
sketch11.addGeometry(Part.LineSegment(App.Vector(-2.5, -5.5, 0), App.Vector(-2.5, -9.4, 0)), False)
sketch11.addGeometry(Part.LineSegment(App.Vector(-2.5, -9.4, 0), App.Vector(-1.6, -9.4, 0)), False)
sketch11.addGeometry(Part.ArcOfCircle(Part.Circle(App.Vector(-2, -7.5, 0), App.Vector(0, 0, 1), 2), math.radians(-77), math.radians(-49)), False)
sketch11.addGeometry(Part.LineSegment(App.Vector(-0.7, -9, 0), App.Vector(0, -9, 0)), False)
sketch11.addConstraint(Sketcher.Constraint("Coincident", 0, 2, 1, 1))
sketch11.addConstraint(Sketcher.Constraint("Coincident", 1, 2, 2, 1))
sketch11.addConstraint(Sketcher.Constraint("Coincident", 2, 2, 3, 1))
sketch11.addConstraint(Sketcher.Constraint("Coincident", 3, 2, 4, 1))
sketch11.addConstraint(Sketcher.Constraint("Coincident", 4, 2, 5, 1))
sketch11.addConstraint(Sketcher.Constraint("Coincident", 5, 2, 6, 1))
sketch11.addConstraint(Sketcher.Constraint("Coincident", 6, 2, 7, 1))
sketch11.addConstraint(Sketcher.Constraint("Coincident", 7, 2, 0, 1))
sketch11.addConstraint(Sketcher.Constraint("Vertical", 0))
sketch11.addConstraint(Sketcher.Constraint("Horizontal", 1))
sketch11.addConstraint(Sketcher.Constraint("Horizontal", 3))
sketch11.addConstraint(Sketcher.Constraint("Vertical", 4))
sketch11.addConstraint(Sketcher.Constraint("Horizontal", 5))
sketch11.addConstraint(Sketcher.Constraint("Horizontal", 7))
sketch11.addConstraint(Sketcher.Constraint("Coincident", 6, 3, 2, 3))
sketch11.addConstraint(Sketcher.Constraint("Equal", 2, 6))
sketch11.addConstraint(Sketcher.Constraint("PointOnObject", 0, 2, -2))
sketch11.addConstraint(Sketcher.Constraint("Vertical", 2, 2, 5, 2))
sketch11.addConstraint(Sketcher.Constraint("Vertical", 1, 2, 6, 2))
sketch11.addConstraint(Sketcher.Constraint("Radius", 2, 2.0))
sketch11.addConstraint(Sketcher.Constraint("DistanceY", 0, 1, 0, 2, 3.0))
sketch11.addConstraint(Sketcher.Constraint("DistanceY", 4, 2, 4, 1, 3.9))
sketch11.addConstraint(Sketcher.Constraint("DistanceX", 2, 3, -1, 1, 2.0))
sketch11.addConstraint(Sketcher.Constraint("DistanceY", 0, 2, -1, 1, 6.0))
sketch11.addConstraint(Sketcher.Constraint("DistanceX", 3, 2, -1, 1, 2.5))
pad4 = doc.addObject("PartDesign::Pad", "Pad003")
body.addObject(pad4)
pad4.Profile = sketch11
pad4.Type = "TwoLengths"
pad4.Length = 3
pad4.Length2 = 3

sketch12 = doc.addObject("Sketcher::SketchObject", "Sketch011")
body.addObject(sketch12)
sketch12.AttachmentSupport = (doc.XY_Plane, [""])
sketch12.MapMode = "FlatFace"
sketch12.addGeometry(Part.LineSegment(App.Vector(-1.9, -2.5, 0), App.Vector(-1.9, -1.6, 0)), False)
sketch12.addGeometry(Part.ArcOfCircle(Part.Circle(App.Vector(0, -2, 0), App.Vector(0, 0, 1), 2), math.radians(139), math.radians(167)), False)
sketch12.addGeometry(Part.LineSegment(App.Vector(-1.5, -0.7, 0), App.Vector(-1.5, 0, 0)), False)
sketch12.addGeometry(Part.LineSegment(App.Vector(-1.5, 0, 0), App.Vector(-3, 0, 0)), False)
sketch12.addGeometry(Part.LineSegment(App.Vector(-3, 0, 0), App.Vector(-3, -2.5, 0)), False)
sketch12.addGeometry(Part.LineSegment(App.Vector(-3, -2.5, 0), App.Vector(-1.9, -2.5, 0)), False)
sketch12.addGeometry(Part.LineSegment(App.Vector(1.5, 0, 0), App.Vector(1.5, -0.7, 0)), False)
sketch12.addGeometry(Part.ArcOfCircle(Part.Circle(App.Vector(0, -2, 0), App.Vector(0, 0, 1), 2), math.radians(13), math.radians(41)), False)
sketch12.addGeometry(Part.LineSegment(App.Vector(1.9, -1.6, 0), App.Vector(1.9, -2.5, 0)), False)
sketch12.addGeometry(Part.LineSegment(App.Vector(1.9, -2.5, 0), App.Vector(3, -2.5, 0)), False)
sketch12.addGeometry(Part.LineSegment(App.Vector(3, -2.5, 0), App.Vector(3, 0, 0)), False)
sketch12.addGeometry(Part.LineSegment(App.Vector(3, 0, 0), App.Vector(1.5, 0, 0)), False)
sketch12.addConstraint(Sketcher.Constraint("Coincident", 0, 2, 1, 2))
sketch12.addConstraint(Sketcher.Constraint("Coincident", 1, 1, 2, 1))
sketch12.addConstraint(Sketcher.Constraint("Coincident", 2, 2, 3, 1))
sketch12.addConstraint(Sketcher.Constraint("Coincident", 3, 2, 4, 1))
sketch12.addConstraint(Sketcher.Constraint("Coincident", 4, 2, 5, 1))
sketch12.addConstraint(Sketcher.Constraint("Coincident", 5, 2, 0, 1))
sketch12.addConstraint(Sketcher.Constraint("Coincident", 6, 2, 7, 2))
sketch12.addConstraint(Sketcher.Constraint("Coincident", 7, 1, 8, 1))
sketch12.addConstraint(Sketcher.Constraint("Coincident", 8, 2, 9, 1))
sketch12.addConstraint(Sketcher.Constraint("Coincident", 9, 2, 10, 1))
sketch12.addConstraint(Sketcher.Constraint("Coincident", 10, 2, 11, 1))
sketch12.addConstraint(Sketcher.Constraint("Coincident", 11, 2, 6, 1))
sketch12.addConstraint(Sketcher.Constraint("Vertical", 0))
sketch12.addConstraint(Sketcher.Constraint("Vertical", 2))
sketch12.addConstraint(Sketcher.Constraint("Horizontal", 3))
sketch12.addConstraint(Sketcher.Constraint("Vertical", 4))
sketch12.addConstraint(Sketcher.Constraint("Horizontal", 5))
sketch12.addConstraint(Sketcher.Constraint("Vertical", 6))
sketch12.addConstraint(Sketcher.Constraint("Vertical", 8))
sketch12.addConstraint(Sketcher.Constraint("Horizontal", 9))
sketch12.addConstraint(Sketcher.Constraint("Vertical", 10))
sketch12.addConstraint(Sketcher.Constraint("Horizontal", 11))
sketch12.addConstraint(Sketcher.Constraint("Coincident", 7, 3, 1, 3))
sketch12.addConstraint(Sketcher.Constraint("Equal", 1, 7))
sketch12.addConstraint(Sketcher.Constraint("Symmetric", 3, 2, 10, 2, -1, 1))
sketch12.addConstraint(Sketcher.Constraint("Symmetric", 1, 1, 6, 2, -2))
sketch12.addConstraint(Sketcher.Constraint("Symmetric", 5, 2, 8, 2, -2))
sketch12.addConstraint(Sketcher.Constraint("PointOnObject", 2, 2, -1))
sketch12.addConstraint(Sketcher.Constraint("Radius", 1, 2.0))
sketch12.addConstraint(Sketcher.Constraint("DistanceX", 3, 2, 3, 1, 1.5))
sketch12.addConstraint(Sketcher.Constraint("DistanceY", 4, 2, 4, 1, 2.5))
sketch12.addConstraint(Sketcher.Constraint("DistanceY", 1, 3, -1, 1, 2.0))
sketch12.addConstraint(Sketcher.Constraint("DistanceX", 3, 2, -1, 1, 3.0))
sketch12.addConstraint(Sketcher.Constraint("DistanceX", 5, 1, 5, 2, 1.05))
pocket8 = doc.addObject("PartDesign::Pocket", "Pocket007")
body.addObject(pocket8)
pocket8.Profile = sketch12
pocket8.Length = 15
doc.recompute()

fillet3 = doc.addObject("PartDesign::Fillet", "Fillet002")
body.addObject(fillet3)
fillet3.Base = (pocket8, edges_at(pocket8, [
    (0, -2.5, -9.45),
    (0, -2.5, -5.55),
    (-1.95, -2.5, -7.5),
    (1.95, -2.5, -7.5),
]))
fillet3.Radius = 0.1

doc.recompute()
